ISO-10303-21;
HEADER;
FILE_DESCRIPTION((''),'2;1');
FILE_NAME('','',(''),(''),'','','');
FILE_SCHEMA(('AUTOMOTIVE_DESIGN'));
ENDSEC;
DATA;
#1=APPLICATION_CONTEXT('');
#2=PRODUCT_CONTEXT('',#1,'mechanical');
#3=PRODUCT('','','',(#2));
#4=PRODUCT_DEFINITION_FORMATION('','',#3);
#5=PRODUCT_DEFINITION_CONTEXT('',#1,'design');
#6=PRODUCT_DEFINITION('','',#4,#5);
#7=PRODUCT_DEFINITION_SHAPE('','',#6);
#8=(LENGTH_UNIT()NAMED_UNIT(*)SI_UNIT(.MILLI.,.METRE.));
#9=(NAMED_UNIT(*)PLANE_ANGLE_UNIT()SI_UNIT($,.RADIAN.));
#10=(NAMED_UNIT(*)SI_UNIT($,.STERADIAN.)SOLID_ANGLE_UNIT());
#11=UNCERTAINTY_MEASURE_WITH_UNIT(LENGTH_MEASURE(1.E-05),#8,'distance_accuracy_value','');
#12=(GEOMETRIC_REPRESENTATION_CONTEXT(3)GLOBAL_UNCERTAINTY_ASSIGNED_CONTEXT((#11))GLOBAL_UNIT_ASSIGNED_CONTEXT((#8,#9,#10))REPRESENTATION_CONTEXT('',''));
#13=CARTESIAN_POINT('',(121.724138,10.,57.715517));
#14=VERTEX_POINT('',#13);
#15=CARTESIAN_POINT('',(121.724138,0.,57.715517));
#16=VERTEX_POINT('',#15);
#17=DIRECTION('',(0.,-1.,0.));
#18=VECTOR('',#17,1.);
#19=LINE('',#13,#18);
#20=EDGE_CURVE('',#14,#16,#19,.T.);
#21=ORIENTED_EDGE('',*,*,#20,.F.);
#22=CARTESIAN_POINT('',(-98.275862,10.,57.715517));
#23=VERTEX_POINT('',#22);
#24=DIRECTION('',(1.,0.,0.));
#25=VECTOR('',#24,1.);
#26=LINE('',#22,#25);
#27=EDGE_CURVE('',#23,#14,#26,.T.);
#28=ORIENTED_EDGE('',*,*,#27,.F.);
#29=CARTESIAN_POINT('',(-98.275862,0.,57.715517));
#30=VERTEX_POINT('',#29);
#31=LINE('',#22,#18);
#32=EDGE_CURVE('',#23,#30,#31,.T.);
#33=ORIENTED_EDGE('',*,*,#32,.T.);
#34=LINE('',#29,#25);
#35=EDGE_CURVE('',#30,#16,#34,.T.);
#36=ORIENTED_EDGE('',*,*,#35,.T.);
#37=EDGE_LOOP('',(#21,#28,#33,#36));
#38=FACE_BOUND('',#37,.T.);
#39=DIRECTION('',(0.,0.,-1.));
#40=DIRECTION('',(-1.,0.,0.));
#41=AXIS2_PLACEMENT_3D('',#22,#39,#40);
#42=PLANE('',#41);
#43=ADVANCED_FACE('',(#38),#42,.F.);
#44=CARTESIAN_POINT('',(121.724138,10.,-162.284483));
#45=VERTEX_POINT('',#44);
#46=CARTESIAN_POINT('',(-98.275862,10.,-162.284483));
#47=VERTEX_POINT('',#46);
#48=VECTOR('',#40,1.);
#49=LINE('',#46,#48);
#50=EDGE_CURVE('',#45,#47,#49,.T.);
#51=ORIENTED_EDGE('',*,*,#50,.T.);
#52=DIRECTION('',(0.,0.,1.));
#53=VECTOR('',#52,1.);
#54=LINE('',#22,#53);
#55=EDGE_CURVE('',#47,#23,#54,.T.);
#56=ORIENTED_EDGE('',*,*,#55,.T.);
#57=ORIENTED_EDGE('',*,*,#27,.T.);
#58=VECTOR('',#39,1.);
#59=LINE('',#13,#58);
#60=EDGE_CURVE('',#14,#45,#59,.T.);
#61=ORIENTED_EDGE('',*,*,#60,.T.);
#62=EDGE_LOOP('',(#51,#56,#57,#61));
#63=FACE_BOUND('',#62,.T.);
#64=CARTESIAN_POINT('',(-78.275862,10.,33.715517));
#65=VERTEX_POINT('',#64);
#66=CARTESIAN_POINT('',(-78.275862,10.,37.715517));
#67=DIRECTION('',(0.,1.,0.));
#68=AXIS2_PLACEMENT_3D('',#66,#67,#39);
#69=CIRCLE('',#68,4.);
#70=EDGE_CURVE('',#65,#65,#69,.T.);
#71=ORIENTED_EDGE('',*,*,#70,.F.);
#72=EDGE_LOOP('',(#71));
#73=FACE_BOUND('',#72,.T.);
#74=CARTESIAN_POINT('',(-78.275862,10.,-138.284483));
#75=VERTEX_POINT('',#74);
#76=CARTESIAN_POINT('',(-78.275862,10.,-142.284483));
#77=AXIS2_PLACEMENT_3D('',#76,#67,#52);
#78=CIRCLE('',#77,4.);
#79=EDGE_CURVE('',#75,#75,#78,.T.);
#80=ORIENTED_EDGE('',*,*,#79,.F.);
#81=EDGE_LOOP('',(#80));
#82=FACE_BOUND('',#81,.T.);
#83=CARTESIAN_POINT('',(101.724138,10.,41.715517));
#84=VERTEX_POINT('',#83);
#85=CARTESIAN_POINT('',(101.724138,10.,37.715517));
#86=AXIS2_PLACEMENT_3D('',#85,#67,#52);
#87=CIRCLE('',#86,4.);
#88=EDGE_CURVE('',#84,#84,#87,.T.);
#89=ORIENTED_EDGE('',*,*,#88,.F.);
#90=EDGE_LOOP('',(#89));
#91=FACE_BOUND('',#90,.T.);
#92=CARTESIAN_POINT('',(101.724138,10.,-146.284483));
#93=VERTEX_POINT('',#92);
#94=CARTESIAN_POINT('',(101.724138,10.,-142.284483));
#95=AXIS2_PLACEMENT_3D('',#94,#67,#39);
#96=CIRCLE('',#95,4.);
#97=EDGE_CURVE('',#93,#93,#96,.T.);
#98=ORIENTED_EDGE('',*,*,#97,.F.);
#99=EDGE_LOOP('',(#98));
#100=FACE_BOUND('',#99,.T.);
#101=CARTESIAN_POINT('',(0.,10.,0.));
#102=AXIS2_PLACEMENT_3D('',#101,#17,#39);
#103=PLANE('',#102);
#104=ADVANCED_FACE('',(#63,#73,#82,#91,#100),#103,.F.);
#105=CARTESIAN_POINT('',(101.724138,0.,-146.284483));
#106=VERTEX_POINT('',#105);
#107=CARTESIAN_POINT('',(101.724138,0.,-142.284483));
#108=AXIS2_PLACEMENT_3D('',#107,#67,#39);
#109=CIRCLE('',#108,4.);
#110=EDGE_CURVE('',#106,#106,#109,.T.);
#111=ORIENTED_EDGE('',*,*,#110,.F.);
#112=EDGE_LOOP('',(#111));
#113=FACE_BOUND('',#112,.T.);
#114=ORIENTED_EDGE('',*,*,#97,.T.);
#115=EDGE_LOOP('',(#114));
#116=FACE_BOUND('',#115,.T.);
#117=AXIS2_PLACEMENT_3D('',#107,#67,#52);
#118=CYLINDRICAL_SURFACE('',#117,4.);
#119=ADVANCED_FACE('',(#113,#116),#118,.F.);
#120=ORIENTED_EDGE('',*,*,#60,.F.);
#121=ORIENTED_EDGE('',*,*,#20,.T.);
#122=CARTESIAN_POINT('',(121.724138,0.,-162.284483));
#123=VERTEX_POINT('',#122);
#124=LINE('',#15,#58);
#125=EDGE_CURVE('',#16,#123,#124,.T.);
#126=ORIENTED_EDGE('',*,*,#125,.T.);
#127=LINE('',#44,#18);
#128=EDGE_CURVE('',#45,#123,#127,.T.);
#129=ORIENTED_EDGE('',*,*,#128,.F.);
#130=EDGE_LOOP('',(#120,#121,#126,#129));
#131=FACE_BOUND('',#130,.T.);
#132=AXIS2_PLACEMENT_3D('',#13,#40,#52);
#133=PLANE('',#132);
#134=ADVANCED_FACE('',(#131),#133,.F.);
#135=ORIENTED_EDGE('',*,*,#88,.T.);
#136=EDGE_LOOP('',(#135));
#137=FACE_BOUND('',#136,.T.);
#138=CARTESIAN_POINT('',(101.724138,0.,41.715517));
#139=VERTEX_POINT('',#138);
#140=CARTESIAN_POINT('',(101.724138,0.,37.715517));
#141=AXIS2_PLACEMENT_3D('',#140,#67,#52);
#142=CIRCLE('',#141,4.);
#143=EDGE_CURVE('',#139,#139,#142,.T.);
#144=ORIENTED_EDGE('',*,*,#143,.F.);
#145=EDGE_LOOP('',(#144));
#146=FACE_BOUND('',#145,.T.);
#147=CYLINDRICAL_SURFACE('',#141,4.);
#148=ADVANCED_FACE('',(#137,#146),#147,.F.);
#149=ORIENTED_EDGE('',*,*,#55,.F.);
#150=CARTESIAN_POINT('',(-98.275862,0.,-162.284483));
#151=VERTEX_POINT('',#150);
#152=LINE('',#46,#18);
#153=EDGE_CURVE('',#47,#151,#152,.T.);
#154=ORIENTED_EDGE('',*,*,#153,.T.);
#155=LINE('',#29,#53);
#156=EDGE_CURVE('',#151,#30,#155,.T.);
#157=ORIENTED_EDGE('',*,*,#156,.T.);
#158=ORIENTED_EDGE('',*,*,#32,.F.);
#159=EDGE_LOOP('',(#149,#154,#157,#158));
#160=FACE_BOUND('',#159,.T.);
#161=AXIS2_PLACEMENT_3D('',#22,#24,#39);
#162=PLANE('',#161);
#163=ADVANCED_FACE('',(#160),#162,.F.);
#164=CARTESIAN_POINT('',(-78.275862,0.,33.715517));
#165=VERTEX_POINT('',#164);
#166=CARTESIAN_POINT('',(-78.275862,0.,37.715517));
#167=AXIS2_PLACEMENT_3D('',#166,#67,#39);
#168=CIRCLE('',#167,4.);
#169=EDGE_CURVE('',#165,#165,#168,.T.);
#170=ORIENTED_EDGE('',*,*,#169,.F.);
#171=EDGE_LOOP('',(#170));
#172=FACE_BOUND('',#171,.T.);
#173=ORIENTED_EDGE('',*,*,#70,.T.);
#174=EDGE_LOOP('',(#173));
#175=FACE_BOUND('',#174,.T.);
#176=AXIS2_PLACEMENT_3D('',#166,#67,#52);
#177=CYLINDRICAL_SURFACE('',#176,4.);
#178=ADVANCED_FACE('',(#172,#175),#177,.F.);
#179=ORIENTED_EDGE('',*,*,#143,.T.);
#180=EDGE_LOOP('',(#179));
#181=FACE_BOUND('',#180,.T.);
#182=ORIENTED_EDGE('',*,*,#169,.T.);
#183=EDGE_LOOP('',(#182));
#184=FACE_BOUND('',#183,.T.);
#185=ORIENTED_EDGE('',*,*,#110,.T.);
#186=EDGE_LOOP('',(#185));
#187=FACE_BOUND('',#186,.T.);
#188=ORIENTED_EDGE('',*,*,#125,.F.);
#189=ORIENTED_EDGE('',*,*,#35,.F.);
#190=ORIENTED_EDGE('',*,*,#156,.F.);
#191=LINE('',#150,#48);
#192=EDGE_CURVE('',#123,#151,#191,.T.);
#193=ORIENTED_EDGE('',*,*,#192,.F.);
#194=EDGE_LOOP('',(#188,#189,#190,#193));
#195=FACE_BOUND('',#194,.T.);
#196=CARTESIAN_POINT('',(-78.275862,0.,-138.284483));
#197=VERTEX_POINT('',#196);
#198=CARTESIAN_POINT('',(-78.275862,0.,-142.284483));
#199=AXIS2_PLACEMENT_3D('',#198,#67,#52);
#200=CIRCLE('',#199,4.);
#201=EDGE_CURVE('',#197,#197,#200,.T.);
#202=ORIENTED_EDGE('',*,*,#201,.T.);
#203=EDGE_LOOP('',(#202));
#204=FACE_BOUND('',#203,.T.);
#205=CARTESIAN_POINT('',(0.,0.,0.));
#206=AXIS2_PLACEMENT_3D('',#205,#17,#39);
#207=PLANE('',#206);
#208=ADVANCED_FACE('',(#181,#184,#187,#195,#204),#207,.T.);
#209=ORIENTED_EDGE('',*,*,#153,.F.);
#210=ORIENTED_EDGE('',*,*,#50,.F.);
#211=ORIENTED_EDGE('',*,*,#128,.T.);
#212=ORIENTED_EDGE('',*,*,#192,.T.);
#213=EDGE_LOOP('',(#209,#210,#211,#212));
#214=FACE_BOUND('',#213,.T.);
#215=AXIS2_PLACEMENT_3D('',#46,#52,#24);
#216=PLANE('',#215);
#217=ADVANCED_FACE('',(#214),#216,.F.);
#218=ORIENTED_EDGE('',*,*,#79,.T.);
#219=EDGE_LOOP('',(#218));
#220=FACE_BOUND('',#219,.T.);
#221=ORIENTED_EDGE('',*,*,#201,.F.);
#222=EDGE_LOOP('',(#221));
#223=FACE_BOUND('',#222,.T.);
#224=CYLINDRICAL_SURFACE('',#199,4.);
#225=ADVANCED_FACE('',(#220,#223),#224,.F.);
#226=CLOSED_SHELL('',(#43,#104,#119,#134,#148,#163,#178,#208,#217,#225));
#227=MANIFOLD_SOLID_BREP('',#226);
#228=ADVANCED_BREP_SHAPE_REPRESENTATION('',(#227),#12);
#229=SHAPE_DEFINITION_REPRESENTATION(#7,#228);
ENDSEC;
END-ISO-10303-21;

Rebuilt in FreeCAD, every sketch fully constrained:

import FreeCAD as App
import Part
import Sketcher
from FreeCAD import Vector
Q = App.Units.Quantity


def add_polygon(sketch, points):
    """Adds a closed chain of lines whose ends are joined by coincident constraints."""
    first, n = sketch.GeometryCount, len(points)
    for a, b in zip(points, points[1:] + points[:1]):
        sketch.addGeometry(Part.LineSegment(App.Vector(*a, 0), App.Vector(*b, 0)), False)
    for i in range(n):
        sketch.addConstraint(Sketcher.Constraint("Coincident", first + i, 2, first + (i + 1) % n, 1))

doc = App.newDocument("Part")
params = doc.addObject("Spreadsheet::Sheet", "Params")
for row, (alias, value) in enumerate([
    ("sketch1_width", "220 mm"),
    ("pad1_length", "10 mm"),
    ("sketch2_diameter", "8 mm"),
], start=1):
    params.set(f"A{row}", alias)
    params.set(f"B{row}", "=" + value)
    params.setAlias(f"B{row}", alias)

body = doc.addObject("PartDesign::Body", "Body")

# Sketch on XZ plane
sketch1 = doc.addObject("Sketcher::SketchObject", "Sketch")
body.addObject(sketch1)
sketch1.AttachmentSupport = (doc.XZ_Plane, [""])
sketch1.MapMode = "FlatFace"
add_polygon(sketch1, [(-98.275862, -162.284483), (-98.275862, 57.715517), (121.724138, 57.715517), (121.724138, -162.284483)])  # lines 0-3
sketch1.addConstraint(Sketcher.Constraint("Vertical", 0))
sketch1.addConstraint(Sketcher.Constraint("Horizontal", 1))
sketch1.addConstraint(Sketcher.Constraint("Vertical", 2))
sketch1.addConstraint(Sketcher.Constraint("Horizontal", 3))
sketch1.addConstraint(Sketcher.Constraint("Equal", 3, 0))
sketch1.addConstraint(Sketcher.Constraint("DistanceX", 1, 1, 1, 2, Q("220 mm")))
sketch1.addConstraint(Sketcher.Constraint("DistanceX", 0, 2, -1, 1, Q("98.275862 mm")))
sketch1.addConstraint(Sketcher.Constraint("DistanceY", -1, 1, 0, 2, Q("57.715517 mm")))
sketch1.setExpression("Constraints[9]", "Params.sketch1_width")
pad1 = doc.addObject("PartDesign::Pad", "Pad")
body.addObject(pad1)
pad1.Profile = sketch1
pad1.setExpression("Length", "Params.pad1_length")
pad1.Reversed = True

# Sketch on XZ plane
sketch2 = doc.addObject("Sketcher::SketchObject", "Sketch001")
body.addObject(sketch2)
sketch2.AttachmentSupport = (doc.XZ_Plane, [""])
sketch2.MapMode = "FlatFace"
sketch2.AttachmentOffset = App.Placement(Vector(0, 0, -10), App.Rotation())
sketch2.addGeometry(Part.Circle(Vector(-78.275862, -142.284483, 0), Vector(0, 0, 1), 4), False)
sketch2.addGeometry(Part.Circle(Vector(101.724138, -142.284483, 0), Vector(0, 0, 1), 4), False)
sketch2.addGeometry(Part.Circle(Vector(101.724138, 37.715517, 0), Vector(0, 0, 1), 4), False)
sketch2.addGeometry(Part.Circle(Vector(-78.275862, 37.715517, 0), Vector(0, 0, 1), 4), False)
sketch2.addConstraint(Sketcher.Constraint("Equal", 0, 1))
sketch2.addConstraint(Sketcher.Constraint("Equal", 1, 2))
sketch2.addConstraint(Sketcher.Constraint("Equal", 2, 3))
sketch2.addConstraint(Sketcher.Constraint("Horizontal", 0, 3, 1, 3))
sketch2.addConstraint(Sketcher.Constraint("Horizontal", 2, 3, 3, 3))
sketch2.addConstraint(Sketcher.Constraint("Vertical", 1, 3, 2, 3))
sketch2.addConstraint(Sketcher.Constraint("Vertical", 0, 3, 3, 3))
sketch2.addConstraint(Sketcher.Constraint("Diameter", 0, Q("8 mm")))
sketch2.addConstraint(Sketcher.Constraint("DistanceX", 0, 3, 1, 3, Q("180 mm")))
sketch2.addConstraint(Sketcher.Constraint("DistanceY", 1, 3, 2, 3, Q("180 mm")))
sketch2.addConstraint(Sketcher.Constraint("DistanceX", 0, 3, -1, 1, Q("78.275862 mm")))
sketch2.addConstraint(Sketcher.Constraint("DistanceY", 0, 3, -1, 1, Q("142.284483 mm")))
sketch2.setExpression("Constraints[7]", "Params.sketch2_diameter")
pocket1 = doc.addObject("PartDesign::Pocket", "Pocket")
body.addObject(pocket1)
pocket1.Profile = sketch2
pocket1.Type = "ThroughAll"
pocket1.Reversed = True

doc.recompute()
